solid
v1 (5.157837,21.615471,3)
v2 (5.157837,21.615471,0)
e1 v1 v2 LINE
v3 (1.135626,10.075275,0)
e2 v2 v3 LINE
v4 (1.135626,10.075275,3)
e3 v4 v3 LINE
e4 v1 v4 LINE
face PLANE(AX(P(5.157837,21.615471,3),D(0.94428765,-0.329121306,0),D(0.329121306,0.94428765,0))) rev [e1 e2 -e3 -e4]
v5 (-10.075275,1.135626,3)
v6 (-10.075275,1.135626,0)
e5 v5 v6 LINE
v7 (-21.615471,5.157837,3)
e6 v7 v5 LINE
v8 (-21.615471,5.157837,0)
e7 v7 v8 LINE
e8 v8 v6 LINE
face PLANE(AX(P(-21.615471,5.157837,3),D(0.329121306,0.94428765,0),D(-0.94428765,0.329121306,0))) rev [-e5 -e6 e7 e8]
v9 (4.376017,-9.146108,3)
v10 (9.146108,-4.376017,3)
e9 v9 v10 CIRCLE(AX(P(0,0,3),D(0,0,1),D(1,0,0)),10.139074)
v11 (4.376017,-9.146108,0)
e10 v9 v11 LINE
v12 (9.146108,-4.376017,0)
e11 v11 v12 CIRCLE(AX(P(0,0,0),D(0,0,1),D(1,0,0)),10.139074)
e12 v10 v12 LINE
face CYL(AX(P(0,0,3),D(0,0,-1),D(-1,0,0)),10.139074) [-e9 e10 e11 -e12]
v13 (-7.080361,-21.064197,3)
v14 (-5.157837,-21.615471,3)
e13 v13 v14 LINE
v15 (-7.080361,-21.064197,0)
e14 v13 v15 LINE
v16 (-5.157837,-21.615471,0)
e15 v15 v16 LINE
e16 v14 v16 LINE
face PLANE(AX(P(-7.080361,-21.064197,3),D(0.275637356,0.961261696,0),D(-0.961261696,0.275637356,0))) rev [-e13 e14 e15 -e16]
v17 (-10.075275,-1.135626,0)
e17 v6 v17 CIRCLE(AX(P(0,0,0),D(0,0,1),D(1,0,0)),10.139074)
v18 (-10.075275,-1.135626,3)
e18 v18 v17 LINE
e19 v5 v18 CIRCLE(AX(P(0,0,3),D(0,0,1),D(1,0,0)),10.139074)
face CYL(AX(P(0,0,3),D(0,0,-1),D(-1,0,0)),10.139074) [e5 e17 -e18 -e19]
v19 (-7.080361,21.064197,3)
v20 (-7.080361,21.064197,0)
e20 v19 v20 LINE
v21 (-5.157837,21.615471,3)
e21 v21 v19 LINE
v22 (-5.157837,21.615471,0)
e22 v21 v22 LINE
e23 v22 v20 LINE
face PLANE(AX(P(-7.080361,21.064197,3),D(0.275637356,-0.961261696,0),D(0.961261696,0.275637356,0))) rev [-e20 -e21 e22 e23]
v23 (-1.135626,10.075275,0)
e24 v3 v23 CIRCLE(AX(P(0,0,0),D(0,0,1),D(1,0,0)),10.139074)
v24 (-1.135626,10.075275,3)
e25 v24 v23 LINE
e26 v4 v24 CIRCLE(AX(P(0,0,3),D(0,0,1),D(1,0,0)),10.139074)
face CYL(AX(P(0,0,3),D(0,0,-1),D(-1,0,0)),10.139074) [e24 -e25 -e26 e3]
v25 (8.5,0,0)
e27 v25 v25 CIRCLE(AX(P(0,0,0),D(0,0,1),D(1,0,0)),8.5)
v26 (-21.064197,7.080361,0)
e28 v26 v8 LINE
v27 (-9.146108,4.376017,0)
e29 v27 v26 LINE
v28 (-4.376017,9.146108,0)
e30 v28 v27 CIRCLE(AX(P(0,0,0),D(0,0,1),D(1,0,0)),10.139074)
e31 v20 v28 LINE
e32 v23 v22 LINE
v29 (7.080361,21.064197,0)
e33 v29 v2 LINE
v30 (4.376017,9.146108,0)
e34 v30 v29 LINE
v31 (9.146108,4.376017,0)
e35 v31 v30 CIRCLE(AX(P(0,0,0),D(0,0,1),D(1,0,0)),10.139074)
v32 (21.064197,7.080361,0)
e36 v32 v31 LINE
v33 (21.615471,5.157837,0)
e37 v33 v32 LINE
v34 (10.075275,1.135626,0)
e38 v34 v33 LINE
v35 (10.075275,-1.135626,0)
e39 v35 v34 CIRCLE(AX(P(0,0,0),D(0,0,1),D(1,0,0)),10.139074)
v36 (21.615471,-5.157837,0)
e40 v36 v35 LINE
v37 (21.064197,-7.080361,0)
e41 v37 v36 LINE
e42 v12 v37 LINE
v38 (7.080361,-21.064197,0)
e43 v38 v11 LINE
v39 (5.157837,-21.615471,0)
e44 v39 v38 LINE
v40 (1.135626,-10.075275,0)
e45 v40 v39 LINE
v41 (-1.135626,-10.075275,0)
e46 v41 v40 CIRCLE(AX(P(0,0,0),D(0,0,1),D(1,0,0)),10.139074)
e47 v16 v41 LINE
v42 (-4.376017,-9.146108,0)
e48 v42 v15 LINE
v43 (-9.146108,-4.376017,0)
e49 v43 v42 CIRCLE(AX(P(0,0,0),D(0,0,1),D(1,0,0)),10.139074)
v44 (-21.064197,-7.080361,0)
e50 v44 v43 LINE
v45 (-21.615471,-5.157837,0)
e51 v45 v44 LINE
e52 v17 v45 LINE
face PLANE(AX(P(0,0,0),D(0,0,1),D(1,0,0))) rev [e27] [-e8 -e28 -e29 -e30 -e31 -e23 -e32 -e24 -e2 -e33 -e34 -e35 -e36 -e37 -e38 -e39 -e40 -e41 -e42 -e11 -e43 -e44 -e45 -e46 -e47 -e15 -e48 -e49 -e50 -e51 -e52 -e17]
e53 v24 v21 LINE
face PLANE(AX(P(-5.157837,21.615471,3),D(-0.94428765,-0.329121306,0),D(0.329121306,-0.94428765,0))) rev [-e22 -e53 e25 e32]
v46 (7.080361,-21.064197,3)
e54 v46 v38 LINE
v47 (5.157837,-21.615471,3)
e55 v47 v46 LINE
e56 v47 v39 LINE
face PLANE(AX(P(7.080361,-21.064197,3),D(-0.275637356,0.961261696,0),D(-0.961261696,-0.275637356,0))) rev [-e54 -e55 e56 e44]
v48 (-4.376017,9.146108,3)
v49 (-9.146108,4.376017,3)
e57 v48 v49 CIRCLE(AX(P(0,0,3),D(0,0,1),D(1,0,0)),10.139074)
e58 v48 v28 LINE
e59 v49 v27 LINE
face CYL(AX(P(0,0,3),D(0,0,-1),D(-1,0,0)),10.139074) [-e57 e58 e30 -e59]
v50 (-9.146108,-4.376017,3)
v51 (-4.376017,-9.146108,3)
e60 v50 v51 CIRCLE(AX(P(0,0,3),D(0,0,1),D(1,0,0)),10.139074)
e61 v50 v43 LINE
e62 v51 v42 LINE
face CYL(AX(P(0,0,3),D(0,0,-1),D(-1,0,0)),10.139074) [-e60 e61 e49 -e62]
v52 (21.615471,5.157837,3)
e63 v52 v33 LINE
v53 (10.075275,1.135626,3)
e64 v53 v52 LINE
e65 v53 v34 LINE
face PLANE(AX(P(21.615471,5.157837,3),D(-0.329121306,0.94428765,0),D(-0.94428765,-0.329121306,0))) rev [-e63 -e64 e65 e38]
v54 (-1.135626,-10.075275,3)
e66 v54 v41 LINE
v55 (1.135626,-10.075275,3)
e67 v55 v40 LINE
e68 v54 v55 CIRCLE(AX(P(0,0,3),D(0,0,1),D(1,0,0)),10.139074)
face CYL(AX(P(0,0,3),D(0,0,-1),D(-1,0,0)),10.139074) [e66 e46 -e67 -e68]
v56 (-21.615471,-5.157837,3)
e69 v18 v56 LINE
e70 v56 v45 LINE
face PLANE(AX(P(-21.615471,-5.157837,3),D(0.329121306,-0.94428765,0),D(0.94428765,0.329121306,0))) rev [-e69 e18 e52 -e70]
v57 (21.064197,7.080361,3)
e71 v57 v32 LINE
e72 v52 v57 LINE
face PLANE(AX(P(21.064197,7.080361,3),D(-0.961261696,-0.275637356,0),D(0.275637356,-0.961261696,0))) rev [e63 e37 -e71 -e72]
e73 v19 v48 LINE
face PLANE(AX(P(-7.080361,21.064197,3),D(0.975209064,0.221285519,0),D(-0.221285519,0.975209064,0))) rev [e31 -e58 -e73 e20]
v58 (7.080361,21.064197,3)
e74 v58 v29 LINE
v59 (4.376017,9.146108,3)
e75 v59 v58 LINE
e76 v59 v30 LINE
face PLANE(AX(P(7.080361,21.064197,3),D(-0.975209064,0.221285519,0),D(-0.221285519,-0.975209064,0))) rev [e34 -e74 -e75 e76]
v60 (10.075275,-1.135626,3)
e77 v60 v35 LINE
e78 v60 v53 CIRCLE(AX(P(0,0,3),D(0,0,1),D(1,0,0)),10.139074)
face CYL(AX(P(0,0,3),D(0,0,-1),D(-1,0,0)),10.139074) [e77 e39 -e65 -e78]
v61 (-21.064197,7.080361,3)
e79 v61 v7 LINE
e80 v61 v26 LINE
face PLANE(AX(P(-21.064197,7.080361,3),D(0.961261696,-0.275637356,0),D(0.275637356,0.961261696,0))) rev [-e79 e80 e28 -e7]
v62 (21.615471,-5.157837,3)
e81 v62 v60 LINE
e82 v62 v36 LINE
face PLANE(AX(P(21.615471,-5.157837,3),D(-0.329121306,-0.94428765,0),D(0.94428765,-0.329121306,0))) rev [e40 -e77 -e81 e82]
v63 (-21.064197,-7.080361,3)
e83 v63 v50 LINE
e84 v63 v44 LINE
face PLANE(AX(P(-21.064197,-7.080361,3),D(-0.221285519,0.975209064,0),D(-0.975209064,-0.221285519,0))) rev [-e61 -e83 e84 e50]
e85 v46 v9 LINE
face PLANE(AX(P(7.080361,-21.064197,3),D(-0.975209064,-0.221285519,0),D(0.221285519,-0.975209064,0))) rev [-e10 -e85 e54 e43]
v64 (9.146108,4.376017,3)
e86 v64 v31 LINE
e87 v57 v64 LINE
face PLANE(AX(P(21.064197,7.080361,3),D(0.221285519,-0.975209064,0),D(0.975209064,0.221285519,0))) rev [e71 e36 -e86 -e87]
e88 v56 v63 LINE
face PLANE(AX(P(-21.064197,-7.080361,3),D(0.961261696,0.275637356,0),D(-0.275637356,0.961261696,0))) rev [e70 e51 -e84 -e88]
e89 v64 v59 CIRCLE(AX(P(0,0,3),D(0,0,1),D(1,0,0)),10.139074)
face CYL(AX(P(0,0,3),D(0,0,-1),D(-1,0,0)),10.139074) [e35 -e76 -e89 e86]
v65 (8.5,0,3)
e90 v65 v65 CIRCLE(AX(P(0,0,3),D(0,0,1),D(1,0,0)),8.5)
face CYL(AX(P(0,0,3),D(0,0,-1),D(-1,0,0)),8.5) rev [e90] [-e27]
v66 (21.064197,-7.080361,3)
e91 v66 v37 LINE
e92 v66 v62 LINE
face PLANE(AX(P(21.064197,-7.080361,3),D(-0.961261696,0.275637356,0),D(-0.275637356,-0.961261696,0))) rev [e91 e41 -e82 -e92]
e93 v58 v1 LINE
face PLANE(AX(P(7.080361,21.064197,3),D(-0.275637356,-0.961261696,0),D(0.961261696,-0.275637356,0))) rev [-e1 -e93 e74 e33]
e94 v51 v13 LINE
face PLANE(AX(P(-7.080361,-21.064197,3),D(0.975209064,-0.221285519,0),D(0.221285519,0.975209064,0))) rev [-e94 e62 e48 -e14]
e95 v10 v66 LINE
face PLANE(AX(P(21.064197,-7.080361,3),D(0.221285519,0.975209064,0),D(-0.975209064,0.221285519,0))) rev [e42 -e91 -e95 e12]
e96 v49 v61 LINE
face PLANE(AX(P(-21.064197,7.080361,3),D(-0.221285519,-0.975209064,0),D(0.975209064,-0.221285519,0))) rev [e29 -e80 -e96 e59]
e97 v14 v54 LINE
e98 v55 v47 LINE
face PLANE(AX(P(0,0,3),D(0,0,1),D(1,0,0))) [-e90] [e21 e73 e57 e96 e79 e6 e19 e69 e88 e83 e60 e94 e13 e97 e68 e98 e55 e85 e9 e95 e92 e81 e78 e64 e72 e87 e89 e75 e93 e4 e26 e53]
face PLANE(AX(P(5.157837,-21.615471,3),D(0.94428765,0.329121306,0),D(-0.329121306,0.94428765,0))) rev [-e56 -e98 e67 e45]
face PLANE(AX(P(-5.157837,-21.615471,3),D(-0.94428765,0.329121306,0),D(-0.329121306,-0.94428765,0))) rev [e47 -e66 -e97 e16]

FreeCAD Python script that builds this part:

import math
import FreeCAD as App
import Part
import Sketcher

V = App.Vector
Q = App.Units.Quantity

doc = App.newDocument("Part")
body = doc.addObject("PartDesign::Body", "Body")

sketch1 = body.newObject("Sketcher::SketchObject", "Sketch")
sketch1.AttachmentSupport = (doc.getObject("XY_Plane"), [""])
sketch1.MapMode = "FlatFace"
sketch1.addGeometry(Part.LineSegment(V(21.1, 7.1, 0), V(9.1, 4.4, 0)), False)
sketch1.addGeometry(Part.ArcOfCircle(Part.Circle(V(0, 0, 0), V(0, 0, 1), 10.1), math.radians(26), math.radians(64)), False)
sketch1.addGeometry(Part.LineSegment(V(4.4, 9.1, 0), V(7.1, 21.1, 0)), False)
sketch1.addGeometry(Part.LineSegment(V(7.1, 21.1, 0), V(5.2, 21.6, 0)), False)
sketch1.addGeometry(Part.LineSegment(V(5.2, 21.6, 0), V(1.1, 10.1, 0)), False)
sketch1.addGeometry(Part.ArcOfCircle(Part.Circle(V(0, 0, 0), V(0, 0, 1), 10.1), math.radians(83.57), math.radians(96.43)), False)
sketch1.addGeometry(Part.LineSegment(V(-1.1, 10.1, 0), V(-5.2, 21.6, 0)), False)
sketch1.addGeometry(Part.LineSegment(V(-5.2, 21.6, 0), V(-7.1, 21.1, 0)), False)
sketch1.addGeometry(Part.LineSegment(V(-7.1, 21.1, 0), V(-4.4, 9.1, 0)), False)
sketch1.addGeometry(Part.ArcOfCircle(Part.Circle(V(0, 0, 0), V(0, 0, 1), 10.1), math.radians(116), math.radians(154)), False)
sketch1.addGeometry(Part.LineSegment(V(-9.1, 4.4, 0), V(-21.1, 7.1, 0)), False)
sketch1.addGeometry(Part.LineSegment(V(-21.1, 7.1, 0), V(-21.6, 5.2, 0)), False)
sketch1.addGeometry(Part.LineSegment(V(-21.6, 5.2, 0), V(-10.1, 1.1, 0)), False)
sketch1.addGeometry(Part.ArcOfCircle(Part.Circle(V(0, 0, 0), V(0, 0, 1), 10.1), math.radians(173.57), math.radians(186.43)), False)
sketch1.addGeometry(Part.LineSegment(V(-10.1, -1.1, 0), V(-21.6, -5.2, 0)), False)
sketch1.addGeometry(Part.LineSegment(V(-21.6, -5.2, 0), V(-21.1, -7.1, 0)), False)
sketch1.addGeometry(Part.LineSegment(V(-21.1, -7.1, 0), V(-9.1, -4.4, 0)), False)
sketch1.addGeometry(Part.ArcOfCircle(Part.Circle(V(0, 0, 0), V(0, 0, 1), 10.1), math.radians(-154), math.radians(-116)), False)
sketch1.addGeometry(Part.LineSegment(V(-4.4, -9.1, 0), V(-7.1, -21.1, 0)), False)
sketch1.addGeometry(Part.LineSegment(V(-7.1, -21.1, 0), V(-5.2, -21.6, 0)), False)
sketch1.addGeometry(Part.LineSegment(V(-5.2, -21.6, 0), V(-1.1, -10.1, 0)), False)
sketch1.addGeometry(Part.ArcOfCircle(Part.Circle(V(0, 0, 0), V(0, 0, 1), 10.1), math.radians(-96.43), math.radians(-83.57)), False)
sketch1.addGeometry(Part.LineSegment(V(1.1, -10.1, 0), V(5.2, -21.6, 0)), False)
sketch1.addGeometry(Part.LineSegment(V(5.2, -21.6, 0), V(7.1, -21.1, 0)), False)
sketch1.addGeometry(Part.LineSegment(V(7.1, -21.1, 0), V(4.4, -9.1, 0)), False)
sketch1.addGeometry(Part.ArcOfCircle(Part.Circle(V(0, 0, 0), V(0, 0, 1), 10.1), math.radians(-64), math.radians(-26)), False)
sketch1.addGeometry(Part.LineSegment(V(9.1, -4.4, 0), V(21.1, -7.1, 0)), False)
sketch1.addGeometry(Part.LineSegment(V(21.1, -7.1, 0), V(21.6, -5.2, 0)), False)
sketch1.addGeometry(Part.LineSegment(V(21.6, -5.2, 0), V(10.1, -1.1, 0)), False)
sketch1.addGeometry(Part.ArcOfCircle(Part.Circle(V(0, 0, 0), V(0, 0, 1), 10.1), math.radians(-6.43), math.radians(6.43)), False)
sketch1.addGeometry(Part.LineSegment(V(10.1, 1.1, 0), V(21.6, 5.2, 0)), False)
sketch1.addGeometry(Part.LineSegment(V(21.6, 5.2, 0), V(21.1, 7.1, 0)), False)
sketch1.addGeometry(Part.Circle(V(0, 0, 0), V(0, 0, 1), 8.5), False)
sketch1.addConstraint(Sketcher.Constraint("Coincident", 0, 2, 1, 1))
sketch1.addConstraint(Sketcher.Constraint("Coincident", 1, 2, 2, 1))
sketch1.addConstraint(Sketcher.Constraint("Coincident", 2, 2, 3, 1))
sketch1.addConstraint(Sketcher.Constraint("Coincident", 3, 2, 4, 1))
sketch1.addConstraint(Sketcher.Constraint("Coincident", 4, 2, 5, 1))
sketch1.addConstraint(Sketcher.Constraint("Coincident", 5, 2, 6, 1))
sketch1.addConstraint(Sketcher.Constraint("Coincident", 6, 2, 7, 1))
sketch1.addConstraint(Sketcher.Constraint("Coincident", 7, 2, 8, 1))
sketch1.addConstraint(Sketcher.Constraint("Coincident", 8, 2, 9, 1))
sketch1.addConstraint(Sketcher.Constraint("Coincident", 9, 2, 10, 1))
sketch1.addConstraint(Sketcher.Constraint("Coincident", 10, 2, 11, 1))
sketch1.addConstraint(Sketcher.Constraint("Coincident", 11, 2, 12, 1))
sketch1.addConstraint(Sketcher.Constraint("Coincident", 12, 2, 13, 1))
sketch1.addConstraint(Sketcher.Constraint("Coincident", 13, 2, 14, 1))
sketch1.addConstraint(Sketcher.Constraint("Coincident", 14, 2, 15, 1))
sketch1.addConstraint(Sketcher.Constraint("Coincident", 15, 2, 16, 1))
sketch1.addConstraint(Sketcher.Constraint("Coincident", 16, 2, 17, 1))
sketch1.addConstraint(Sketcher.Constraint("Coincident", 17, 2, 18, 1))
sketch1.addConstraint(Sketcher.Constraint("Coincident", 18, 2, 19, 1))
sketch1.addConstraint(Sketcher.Constraint("Coincident", 19, 2, 20, 1))
sketch1.addConstraint(Sketcher.Constraint("Coincident", 20, 2, 21, 1))
sketch1.addConstraint(Sketcher.Constraint("Coincident", 21, 2, 22, 1))
sketch1.addConstraint(Sketcher.Constraint("Coincident", 22, 2, 23, 1))
sketch1.addConstraint(Sketcher.Constraint("Coincident", 23, 2, 24, 1))
sketch1.addConstraint(Sketcher.Constraint("Coincident", 24, 2, 25, 1))
sketch1.addConstraint(Sketcher.Constraint("Coincident", 25, 2, 26, 1))
sketch1.addConstraint(Sketcher.Constraint("Coincident", 26, 2, 27, 1))
sketch1.addConstraint(Sketcher.Constraint("Coincident", 27, 2, 28, 1))
sketch1.addConstraint(Sketcher.Constraint("Coincident", 28, 2, 29, 1))
sketch1.addConstraint(Sketcher.Constraint("Coincident", 29, 2, 30, 1))
sketch1.addConstraint(Sketcher.Constraint("Coincident", 30, 2, 31, 1))
sketch1.addConstraint(Sketcher.Constraint("Coincident", 31, 2, 0, 1))
sketch1.addConstraint(Sketcher.Constraint("Coincident", 1, 3, -1, 1))
sketch1.addConstraint(Sketcher.Constraint("Coincident", 5, 3, -1, 1))
sketch1.addConstraint(Sketcher.Constraint("Coincident", 9, 3, -1, 1))
sketch1.addConstraint(Sketcher.Constraint("Coincident", 13, 3, -1, 1))
sketch1.addConstraint(Sketcher.Constraint("Coincident", 17, 3, -1, 1))
sketch1.addConstraint(Sketcher.Constraint("Coincident", 21, 3, -1, 1))
sketch1.addConstraint(Sketcher.Constraint("Coincident", 25, 3, -1, 1))
sketch1.addConstraint(Sketcher.Constraint("Coincident", 29, 3, -1, 1))
sketch1.addConstraint(Sketcher.Constraint("Coincident", 32, 3, -1, 1))
sketch1.addConstraint(Sketcher.Constraint("Equal", 1, 5))
sketch1.addConstraint(Sketcher.Constraint("Equal", 5, 9))
sketch1.addConstraint(Sketcher.Constraint("Equal", 9, 13))
sketch1.addConstraint(Sketcher.Constraint("Equal", 13, 17))
sketch1.addConstraint(Sketcher.Constraint("Equal", 17, 21))
sketch1.addConstraint(Sketcher.Constraint("Equal", 21, 25))
sketch1.addConstraint(Sketcher.Constraint("Equal", 25, 29))
sketch1.addConstraint(Sketcher.Constraint("Symmetric", 2, 2, 18, 2, -1, 1))
sketch1.addConstraint(Sketcher.Constraint("Symmetric", 3, 2, 19, 2, -1, 1))
sketch1.addConstraint(Sketcher.Constraint("Symmetric", 6, 2, 22, 2, -1, 1))
sketch1.addConstraint(Sketcher.Constraint("Symmetric", 7, 2, 23, 2, -1, 1))
sketch1.addConstraint(Sketcher.Constraint("Symmetric", 10, 2, 26, 2, -1, 1))
sketch1.addConstraint(Sketcher.Constraint("Symmetric", 11, 2, 27, 2, -1, 1))
sketch1.addConstraint(Sketcher.Constraint("Symmetric", 14, 2, 30, 2, -1, 1))
sketch1.addConstraint(Sketcher.Constraint("Symmetric", 15, 2, 31, 2, -1, 1))
sketch1.addConstraint(Sketcher.Constraint("Symmetric", 3, 2, 6, 2, -2))
sketch1.addConstraint(Sketcher.Constraint("Symmetric", 2, 2, 7, 2, -2))
sketch1.addConstraint(Sketcher.Constraint("Symmetric", 15, 2, 26, 2, -2))
sketch1.addConstraint(Sketcher.Constraint("Symmetric", 14, 2, 27, 2, -2))
sketch1.addConstraint(Sketcher.Constraint("Perpendicular", 0, 8))
sketch1.addConstraint(Sketcher.Constraint("Perpendicular", 2, 10))
sketch1.addConstraint(Sketcher.Constraint("Perpendicular", 3, 11))
sketch1.addConstraint(Sketcher.Constraint("Perpendicular", 4, 12))
sketch1.addConstraint(Sketcher.Constraint("Perpendicular", 6, 14))
sketch1.addConstraint(Sketcher.Constraint("Perpendicular", 8, 16))
sketch1.addConstraint(Sketcher.Constraint("Perpendicular", 10, 18))
sketch1.addConstraint(Sketcher.Constraint("Perpendicular", 12, 20))
sketch1.addConstraint(Sketcher.Constraint("Perpendicular", 14, 22))
sketch1.addConstraint(Sketcher.Constraint("Perpendicular", 16, 24))
sketch1.addConstraint(Sketcher.Constraint("Perpendicular", 18, 26))
sketch1.addConstraint(Sketcher.Constraint("Perpendicular", 20, 28))
sketch1.addConstraint(Sketcher.Constraint("Perpendicular", 22, 30))
sketch1.addConstraint(Sketcher.Constraint("Horizontal", 4, 2, 5, 2))
sketch1.addConstraint(Sketcher.Constraint("Horizontal", 1, 2, 8, 2))
sketch1.addConstraint(Sketcher.Constraint("Equal", 0, 2))
sketch1.addConstraint(Sketcher.Constraint("Equal", 2, 4))
sketch1.addConstraint(Sketcher.Constraint("Equal", 7, 11))
sketch1.addConstraint(Sketcher.Constraint("Equal", 10, 12))
sketch1.addConstraint(Sketcher.Constraint("Diameter", 32, Q("17 mm")))
sketch1.addConstraint(Sketcher.Constraint("Angle", 3, Q("164 deg")))
sketch1.addConstraint(Sketcher.Constraint("Distance", 3, Q("2 mm")))
sketch1.addConstraint(Sketcher.Constraint("Radius", 1, Q("10.139074 mm")))
sketch1.addConstraint(Sketcher.Constraint("Distance", 0, Q("12.22106 mm")))
sketch1.addConstraint(Sketcher.Constraint("DistanceX", -1, 1, 2, 2, Q("7.080361 mm")))
sketch1.addConstraint(Sketcher.Constraint("DistanceY", -1, 1, 3, 2, Q("21.615471 mm")))
pad1 = body.newObject("PartDesign::Pad", "Pad")
pad1.Profile = sketch1
pad1.Length = 3

doc.recompute()
